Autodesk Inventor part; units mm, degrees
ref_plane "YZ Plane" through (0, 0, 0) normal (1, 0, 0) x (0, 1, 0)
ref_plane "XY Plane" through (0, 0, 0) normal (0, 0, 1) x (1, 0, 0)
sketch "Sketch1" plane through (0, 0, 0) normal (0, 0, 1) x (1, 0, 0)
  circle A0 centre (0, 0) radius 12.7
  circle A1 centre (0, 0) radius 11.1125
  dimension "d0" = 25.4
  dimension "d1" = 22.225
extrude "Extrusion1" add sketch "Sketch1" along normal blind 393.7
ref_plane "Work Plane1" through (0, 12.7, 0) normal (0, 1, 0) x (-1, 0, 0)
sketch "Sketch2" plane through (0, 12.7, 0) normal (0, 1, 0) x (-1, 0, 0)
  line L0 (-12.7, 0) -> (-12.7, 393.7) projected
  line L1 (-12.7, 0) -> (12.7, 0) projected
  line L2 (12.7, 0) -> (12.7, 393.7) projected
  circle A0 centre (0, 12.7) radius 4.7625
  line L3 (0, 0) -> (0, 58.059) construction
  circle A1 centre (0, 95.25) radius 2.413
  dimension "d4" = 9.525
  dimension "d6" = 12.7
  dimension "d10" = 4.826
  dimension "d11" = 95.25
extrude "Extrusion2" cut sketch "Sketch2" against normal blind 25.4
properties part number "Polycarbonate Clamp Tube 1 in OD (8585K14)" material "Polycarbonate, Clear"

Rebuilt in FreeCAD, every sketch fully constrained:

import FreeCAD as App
import Part
import Sketcher
from FreeCAD import Vector
Q = App.Units.Quantity

doc = App.newDocument("Part")
body = doc.addObject("PartDesign::Body", "Body")

# Sketch on XY plane
sketch1 = body.newObject("Sketcher::SketchObject", "Sketch")
sketch1.AttachmentSupport = (doc.getObject("XY_Plane"), [""])
sketch1.MapMode = "FlatFace"
sketch1.addGeometry(Part.Circle(Vector(0, 0, 0), Vector(0, 0, 1), 13), False)
sketch1.addGeometry(Part.Circle(Vector(0, 0, 0), Vector(0, 0, 1), 11), False)
sketch1.addConstraint(Sketcher.Constraint("Coincident", 0, 3, -1, 1))
sketch1.addConstraint(Sketcher.Constraint("Coincident", 1, 3, -1, 1))
sketch1.addConstraint(Sketcher.Constraint("Diameter", 0, Q("1 in")))
sketch1.addConstraint(Sketcher.Constraint("Diameter", 1, Q("0.875 in")))
pad1 = body.newObject("PartDesign::Pad", "Pad")
pad1.Profile = sketch1
pad1.Length = Q("15.5 in")

# Sketch on XZ plane
sketch2 = body.newObject("Sketcher::SketchObject", "Sketch001")
sketch2.AttachmentSupport = (doc.getObject("XZ_Plane"), [""])
sketch2.MapMode = "FlatFace"
sketch2.AttachmentOffset = App.Placement(Vector(0, 0, -0.5 * 25.4), App.Rotation())
sketch2.addGeometry(Part.Circle(Vector(0, 12.7, 0), Vector(0, 0, 1), 4.8), False)
sketch2.addGeometry(Part.Circle(Vector(0, 95.2, 0), Vector(0, 0, 1), 2.4), False)
sketch2.addConstraint(Sketcher.Constraint("PointOnObject", 0, 3, -2))
sketch2.addConstraint(Sketcher.Constraint("PointOnObject", 1, 3, -2))
sketch2.addConstraint(Sketcher.Constraint("Diameter", 1, Q("0.19 in")))
sketch2.addConstraint(Sketcher.Constraint("Diameter", 0, Q("0.375 in")))
sketch2.addConstraint(Sketcher.Constraint("DistanceY", -1, 1, 0, 3, Q("0.5 in")))
sketch2.addConstraint(Sketcher.Constraint("DistanceY", -1, 1, 1, 3, Q("3.75 in")))
pocket1 = body.newObject("PartDesign::Pocket", "Pocket")
pocket1.Profile = sketch2
pocket1.Length = Q("1 in")
pocket1.Reversed = True

doc.recompute()
